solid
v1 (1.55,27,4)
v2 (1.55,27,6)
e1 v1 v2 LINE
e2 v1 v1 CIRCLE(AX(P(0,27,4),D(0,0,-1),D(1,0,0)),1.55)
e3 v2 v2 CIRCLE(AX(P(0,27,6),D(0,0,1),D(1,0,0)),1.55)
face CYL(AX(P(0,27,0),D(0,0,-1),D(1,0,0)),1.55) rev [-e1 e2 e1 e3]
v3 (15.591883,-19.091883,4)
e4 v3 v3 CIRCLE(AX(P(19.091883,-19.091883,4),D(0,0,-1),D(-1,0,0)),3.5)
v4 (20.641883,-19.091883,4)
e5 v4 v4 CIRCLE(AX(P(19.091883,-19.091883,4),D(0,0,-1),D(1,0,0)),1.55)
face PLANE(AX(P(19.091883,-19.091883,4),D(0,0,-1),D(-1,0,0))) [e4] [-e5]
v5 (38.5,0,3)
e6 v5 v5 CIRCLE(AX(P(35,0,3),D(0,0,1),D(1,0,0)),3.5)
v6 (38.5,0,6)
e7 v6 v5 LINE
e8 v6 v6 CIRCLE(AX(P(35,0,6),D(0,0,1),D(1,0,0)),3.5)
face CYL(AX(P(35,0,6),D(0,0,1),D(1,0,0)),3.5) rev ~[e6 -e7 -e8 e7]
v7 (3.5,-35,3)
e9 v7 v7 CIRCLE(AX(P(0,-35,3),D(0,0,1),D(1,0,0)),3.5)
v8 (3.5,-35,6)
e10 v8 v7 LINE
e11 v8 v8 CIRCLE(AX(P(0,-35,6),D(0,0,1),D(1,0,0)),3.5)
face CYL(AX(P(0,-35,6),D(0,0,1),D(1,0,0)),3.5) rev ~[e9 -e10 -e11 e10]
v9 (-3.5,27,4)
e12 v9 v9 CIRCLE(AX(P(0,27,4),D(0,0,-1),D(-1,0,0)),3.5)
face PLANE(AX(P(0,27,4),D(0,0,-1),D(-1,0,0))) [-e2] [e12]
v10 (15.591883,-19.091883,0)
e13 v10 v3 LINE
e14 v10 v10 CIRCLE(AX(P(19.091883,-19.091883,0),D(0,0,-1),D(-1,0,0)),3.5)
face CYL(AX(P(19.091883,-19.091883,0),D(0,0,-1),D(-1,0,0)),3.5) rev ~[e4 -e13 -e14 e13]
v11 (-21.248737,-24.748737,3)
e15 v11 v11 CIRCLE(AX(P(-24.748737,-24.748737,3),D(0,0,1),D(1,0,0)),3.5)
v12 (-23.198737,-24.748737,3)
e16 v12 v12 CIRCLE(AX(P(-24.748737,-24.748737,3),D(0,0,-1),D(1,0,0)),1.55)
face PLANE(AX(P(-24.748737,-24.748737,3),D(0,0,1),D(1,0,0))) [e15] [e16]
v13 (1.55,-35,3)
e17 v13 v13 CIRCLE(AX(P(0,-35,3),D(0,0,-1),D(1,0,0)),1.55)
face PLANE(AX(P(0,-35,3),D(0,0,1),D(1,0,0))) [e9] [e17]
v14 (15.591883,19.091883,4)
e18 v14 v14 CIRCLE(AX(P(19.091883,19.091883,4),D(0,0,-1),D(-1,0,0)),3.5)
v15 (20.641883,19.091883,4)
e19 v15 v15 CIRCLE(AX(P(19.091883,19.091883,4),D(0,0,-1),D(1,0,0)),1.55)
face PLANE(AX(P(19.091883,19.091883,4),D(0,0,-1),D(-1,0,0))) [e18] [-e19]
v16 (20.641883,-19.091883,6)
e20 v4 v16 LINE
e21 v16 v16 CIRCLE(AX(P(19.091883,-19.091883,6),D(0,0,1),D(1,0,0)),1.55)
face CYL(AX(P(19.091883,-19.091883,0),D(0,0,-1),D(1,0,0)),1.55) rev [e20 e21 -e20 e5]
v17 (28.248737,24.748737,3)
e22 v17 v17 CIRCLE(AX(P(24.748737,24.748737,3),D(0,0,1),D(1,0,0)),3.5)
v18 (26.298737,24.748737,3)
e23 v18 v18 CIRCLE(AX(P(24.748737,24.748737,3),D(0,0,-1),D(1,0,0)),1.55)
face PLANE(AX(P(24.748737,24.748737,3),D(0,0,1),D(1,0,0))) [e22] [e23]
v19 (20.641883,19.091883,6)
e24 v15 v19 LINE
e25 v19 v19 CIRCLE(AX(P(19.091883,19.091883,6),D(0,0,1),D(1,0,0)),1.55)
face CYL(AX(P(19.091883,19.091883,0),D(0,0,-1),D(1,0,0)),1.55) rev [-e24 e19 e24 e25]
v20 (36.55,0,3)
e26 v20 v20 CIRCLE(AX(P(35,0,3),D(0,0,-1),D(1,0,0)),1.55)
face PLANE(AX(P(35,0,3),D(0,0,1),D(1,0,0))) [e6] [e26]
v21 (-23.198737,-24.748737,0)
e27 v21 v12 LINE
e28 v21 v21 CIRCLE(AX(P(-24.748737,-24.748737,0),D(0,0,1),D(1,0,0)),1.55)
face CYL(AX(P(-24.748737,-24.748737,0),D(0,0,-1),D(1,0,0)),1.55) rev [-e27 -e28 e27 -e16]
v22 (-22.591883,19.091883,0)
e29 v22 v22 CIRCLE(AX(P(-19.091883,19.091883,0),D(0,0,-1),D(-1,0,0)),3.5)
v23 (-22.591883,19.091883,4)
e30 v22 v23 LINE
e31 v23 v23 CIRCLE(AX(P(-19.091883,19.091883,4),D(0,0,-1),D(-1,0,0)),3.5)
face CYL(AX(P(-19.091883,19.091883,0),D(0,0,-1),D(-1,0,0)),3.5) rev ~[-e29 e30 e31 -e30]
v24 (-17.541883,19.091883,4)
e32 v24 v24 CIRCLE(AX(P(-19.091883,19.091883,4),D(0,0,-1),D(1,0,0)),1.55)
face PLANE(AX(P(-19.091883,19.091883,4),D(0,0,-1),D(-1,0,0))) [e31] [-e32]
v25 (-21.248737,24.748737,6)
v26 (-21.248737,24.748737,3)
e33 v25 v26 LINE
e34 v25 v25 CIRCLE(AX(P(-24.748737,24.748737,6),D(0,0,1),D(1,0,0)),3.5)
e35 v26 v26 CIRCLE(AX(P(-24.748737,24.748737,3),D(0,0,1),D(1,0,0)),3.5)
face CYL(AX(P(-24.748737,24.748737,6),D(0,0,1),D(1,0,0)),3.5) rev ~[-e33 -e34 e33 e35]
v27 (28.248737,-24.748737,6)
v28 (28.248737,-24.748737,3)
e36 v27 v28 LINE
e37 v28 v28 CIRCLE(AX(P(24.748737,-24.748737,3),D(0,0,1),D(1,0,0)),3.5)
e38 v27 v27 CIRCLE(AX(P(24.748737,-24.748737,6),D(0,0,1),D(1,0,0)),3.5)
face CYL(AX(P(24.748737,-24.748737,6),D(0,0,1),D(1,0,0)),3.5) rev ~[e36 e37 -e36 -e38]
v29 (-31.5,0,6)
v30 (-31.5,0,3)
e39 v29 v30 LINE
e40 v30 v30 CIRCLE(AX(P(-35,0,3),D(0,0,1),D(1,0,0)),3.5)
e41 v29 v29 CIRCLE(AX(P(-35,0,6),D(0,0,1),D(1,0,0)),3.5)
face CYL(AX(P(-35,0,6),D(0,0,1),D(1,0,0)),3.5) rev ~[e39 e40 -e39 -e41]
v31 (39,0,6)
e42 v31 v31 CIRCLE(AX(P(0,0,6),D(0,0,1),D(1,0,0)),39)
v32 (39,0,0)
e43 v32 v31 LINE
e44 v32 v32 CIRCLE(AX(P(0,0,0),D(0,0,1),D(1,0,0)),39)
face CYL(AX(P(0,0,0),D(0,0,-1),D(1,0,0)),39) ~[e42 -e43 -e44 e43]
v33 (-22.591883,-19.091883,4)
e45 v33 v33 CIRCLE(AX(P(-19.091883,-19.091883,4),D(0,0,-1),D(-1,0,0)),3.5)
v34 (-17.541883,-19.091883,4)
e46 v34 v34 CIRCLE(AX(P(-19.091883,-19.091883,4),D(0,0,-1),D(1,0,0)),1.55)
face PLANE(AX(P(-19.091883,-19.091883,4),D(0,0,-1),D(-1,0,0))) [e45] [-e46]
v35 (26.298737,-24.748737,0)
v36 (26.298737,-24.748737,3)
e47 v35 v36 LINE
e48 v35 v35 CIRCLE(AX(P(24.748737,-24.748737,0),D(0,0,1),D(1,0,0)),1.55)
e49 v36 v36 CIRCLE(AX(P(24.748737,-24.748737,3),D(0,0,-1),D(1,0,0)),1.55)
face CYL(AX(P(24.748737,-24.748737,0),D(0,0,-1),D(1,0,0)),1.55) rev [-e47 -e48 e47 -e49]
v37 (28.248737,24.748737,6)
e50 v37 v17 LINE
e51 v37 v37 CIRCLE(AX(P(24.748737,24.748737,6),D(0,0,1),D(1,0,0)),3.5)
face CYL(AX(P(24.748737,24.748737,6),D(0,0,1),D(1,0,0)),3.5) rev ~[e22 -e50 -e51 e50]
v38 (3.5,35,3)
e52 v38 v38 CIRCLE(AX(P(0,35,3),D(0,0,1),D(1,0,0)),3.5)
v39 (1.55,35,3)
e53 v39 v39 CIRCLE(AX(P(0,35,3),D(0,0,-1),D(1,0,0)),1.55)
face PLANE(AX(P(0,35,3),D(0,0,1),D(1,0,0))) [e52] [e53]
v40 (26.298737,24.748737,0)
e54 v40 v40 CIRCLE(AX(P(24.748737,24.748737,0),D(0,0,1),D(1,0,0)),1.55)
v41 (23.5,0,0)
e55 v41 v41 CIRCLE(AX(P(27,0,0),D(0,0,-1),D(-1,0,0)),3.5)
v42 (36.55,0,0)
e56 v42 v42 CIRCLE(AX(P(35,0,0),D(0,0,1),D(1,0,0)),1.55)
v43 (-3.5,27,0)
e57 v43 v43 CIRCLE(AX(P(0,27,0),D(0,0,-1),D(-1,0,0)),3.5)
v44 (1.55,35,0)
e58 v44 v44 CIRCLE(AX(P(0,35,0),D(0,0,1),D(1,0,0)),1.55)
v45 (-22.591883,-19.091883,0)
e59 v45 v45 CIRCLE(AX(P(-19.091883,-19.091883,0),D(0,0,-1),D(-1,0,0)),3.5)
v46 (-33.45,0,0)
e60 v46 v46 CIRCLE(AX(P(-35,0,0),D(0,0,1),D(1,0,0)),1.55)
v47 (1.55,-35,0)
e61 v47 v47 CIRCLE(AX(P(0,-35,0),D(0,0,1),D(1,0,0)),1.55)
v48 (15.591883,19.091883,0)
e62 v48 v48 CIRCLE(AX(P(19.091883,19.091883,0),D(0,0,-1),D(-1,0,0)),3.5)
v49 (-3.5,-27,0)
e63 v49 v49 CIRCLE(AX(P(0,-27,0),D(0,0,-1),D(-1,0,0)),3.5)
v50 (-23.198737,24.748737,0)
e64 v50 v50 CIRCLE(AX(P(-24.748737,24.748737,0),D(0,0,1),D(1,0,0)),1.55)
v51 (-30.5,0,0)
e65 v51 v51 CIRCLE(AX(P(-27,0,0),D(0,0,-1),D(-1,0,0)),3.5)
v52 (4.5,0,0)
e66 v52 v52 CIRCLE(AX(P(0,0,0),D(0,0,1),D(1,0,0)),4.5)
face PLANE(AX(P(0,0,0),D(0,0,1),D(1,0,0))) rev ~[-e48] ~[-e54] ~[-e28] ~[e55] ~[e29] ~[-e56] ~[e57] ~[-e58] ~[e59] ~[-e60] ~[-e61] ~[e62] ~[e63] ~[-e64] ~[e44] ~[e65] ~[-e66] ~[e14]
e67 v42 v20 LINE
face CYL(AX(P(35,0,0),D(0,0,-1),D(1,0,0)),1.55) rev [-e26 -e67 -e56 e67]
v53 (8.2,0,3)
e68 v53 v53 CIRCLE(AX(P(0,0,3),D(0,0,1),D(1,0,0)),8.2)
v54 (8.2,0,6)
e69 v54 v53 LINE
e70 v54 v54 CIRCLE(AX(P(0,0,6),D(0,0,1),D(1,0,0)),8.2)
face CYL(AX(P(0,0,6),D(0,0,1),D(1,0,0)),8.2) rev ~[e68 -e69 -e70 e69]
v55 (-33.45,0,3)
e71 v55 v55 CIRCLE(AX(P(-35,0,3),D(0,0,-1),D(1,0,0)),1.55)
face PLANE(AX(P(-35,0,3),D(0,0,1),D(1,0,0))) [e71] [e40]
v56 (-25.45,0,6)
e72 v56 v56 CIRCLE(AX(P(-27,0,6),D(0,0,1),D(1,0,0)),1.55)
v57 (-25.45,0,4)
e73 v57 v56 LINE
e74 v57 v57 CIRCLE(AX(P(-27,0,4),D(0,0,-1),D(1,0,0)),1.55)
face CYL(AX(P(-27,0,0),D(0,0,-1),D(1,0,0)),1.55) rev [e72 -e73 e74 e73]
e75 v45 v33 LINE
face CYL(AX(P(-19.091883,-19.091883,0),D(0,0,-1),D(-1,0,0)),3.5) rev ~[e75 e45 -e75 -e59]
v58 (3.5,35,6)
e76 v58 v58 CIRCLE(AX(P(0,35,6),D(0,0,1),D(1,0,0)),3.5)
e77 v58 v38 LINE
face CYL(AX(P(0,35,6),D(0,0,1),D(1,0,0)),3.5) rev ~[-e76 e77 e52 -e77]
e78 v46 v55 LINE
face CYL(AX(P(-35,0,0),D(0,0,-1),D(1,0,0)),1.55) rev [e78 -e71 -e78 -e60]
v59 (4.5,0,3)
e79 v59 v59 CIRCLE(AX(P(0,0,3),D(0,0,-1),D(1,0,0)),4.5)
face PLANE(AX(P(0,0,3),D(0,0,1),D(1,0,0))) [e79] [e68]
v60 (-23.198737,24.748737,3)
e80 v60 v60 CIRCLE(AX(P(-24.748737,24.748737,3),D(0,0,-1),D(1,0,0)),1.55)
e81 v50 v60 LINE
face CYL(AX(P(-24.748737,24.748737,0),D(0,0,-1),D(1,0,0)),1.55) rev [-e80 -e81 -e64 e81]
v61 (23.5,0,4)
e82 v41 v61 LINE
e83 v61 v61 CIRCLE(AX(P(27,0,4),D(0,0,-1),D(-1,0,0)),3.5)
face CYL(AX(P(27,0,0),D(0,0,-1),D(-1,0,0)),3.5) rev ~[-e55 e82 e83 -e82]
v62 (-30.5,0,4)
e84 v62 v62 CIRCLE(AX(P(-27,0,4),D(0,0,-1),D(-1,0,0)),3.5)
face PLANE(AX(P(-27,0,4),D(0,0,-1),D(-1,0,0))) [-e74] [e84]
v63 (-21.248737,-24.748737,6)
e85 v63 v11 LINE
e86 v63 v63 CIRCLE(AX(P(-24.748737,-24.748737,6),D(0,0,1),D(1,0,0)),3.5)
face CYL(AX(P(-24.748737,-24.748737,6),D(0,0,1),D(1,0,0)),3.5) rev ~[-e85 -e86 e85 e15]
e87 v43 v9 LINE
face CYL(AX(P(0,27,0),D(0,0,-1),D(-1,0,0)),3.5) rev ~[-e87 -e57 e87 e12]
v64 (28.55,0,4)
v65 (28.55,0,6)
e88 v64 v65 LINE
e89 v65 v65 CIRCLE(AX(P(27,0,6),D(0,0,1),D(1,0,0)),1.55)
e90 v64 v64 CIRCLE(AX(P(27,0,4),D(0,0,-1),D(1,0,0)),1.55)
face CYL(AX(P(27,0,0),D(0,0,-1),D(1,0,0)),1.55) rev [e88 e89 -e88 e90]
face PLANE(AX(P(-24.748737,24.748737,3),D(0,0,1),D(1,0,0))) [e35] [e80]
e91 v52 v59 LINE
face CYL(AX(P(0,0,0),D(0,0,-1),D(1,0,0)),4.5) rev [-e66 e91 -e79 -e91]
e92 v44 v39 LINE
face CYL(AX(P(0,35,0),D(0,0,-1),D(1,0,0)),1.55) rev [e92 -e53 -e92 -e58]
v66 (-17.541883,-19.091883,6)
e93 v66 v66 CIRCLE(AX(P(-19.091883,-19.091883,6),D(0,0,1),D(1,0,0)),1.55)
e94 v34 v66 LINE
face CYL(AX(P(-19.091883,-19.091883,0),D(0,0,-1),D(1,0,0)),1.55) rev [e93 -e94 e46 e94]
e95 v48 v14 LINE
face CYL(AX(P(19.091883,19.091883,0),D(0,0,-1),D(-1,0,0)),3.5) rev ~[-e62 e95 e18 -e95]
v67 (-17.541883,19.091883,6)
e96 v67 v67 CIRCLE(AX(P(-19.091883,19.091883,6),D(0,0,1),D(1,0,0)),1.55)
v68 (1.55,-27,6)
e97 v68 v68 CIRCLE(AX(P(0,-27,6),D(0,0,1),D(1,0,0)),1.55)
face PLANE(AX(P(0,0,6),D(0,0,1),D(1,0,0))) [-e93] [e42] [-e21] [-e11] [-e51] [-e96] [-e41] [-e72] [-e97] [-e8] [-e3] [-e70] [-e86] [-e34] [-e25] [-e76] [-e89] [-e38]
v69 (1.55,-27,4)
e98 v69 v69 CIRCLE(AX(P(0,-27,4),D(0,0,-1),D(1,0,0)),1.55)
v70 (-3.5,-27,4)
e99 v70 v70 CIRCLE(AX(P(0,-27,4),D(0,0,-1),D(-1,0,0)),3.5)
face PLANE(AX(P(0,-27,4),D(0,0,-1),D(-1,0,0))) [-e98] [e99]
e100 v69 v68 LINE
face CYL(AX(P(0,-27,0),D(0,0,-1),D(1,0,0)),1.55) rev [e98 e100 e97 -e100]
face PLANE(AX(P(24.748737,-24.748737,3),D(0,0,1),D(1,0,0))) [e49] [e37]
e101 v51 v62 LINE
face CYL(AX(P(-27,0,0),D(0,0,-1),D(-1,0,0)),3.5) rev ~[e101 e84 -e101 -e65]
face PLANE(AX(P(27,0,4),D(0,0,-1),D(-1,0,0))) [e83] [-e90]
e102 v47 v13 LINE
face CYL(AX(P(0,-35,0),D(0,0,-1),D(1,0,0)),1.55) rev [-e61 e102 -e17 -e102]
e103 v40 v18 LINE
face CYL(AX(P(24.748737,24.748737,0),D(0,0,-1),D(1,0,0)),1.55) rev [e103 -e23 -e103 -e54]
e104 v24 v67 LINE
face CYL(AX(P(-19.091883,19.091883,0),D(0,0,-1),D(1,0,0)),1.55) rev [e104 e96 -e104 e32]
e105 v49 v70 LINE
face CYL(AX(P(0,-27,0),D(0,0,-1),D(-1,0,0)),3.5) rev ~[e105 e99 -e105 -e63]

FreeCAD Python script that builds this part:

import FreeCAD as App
import Part
import Sketcher
from FreeCAD import Vector
Q = App.Units.Quantity

doc = App.newDocument("Part")
body = doc.addObject("PartDesign::Body", "Body")

# Sketch on XY plane
sketch1 = body.newObject("Sketcher::SketchObject", "Sketch")
sketch1.AttachmentSupport = (doc.getObject("XY_Plane"), [""])
sketch1.MapMode = "FlatFace"
sketch1.addGeometry([
    Part.Circle(Vector(0, 0, 0), Vector(0, 0, 1), 39),  # 0
    Part.Circle(Vector(-24.748737, -24.748737, 0), Vector(0, 0, 1), 1.55),  # 1
    Part.Circle(Vector(-19.091883, -19.091883, 0), Vector(0, 0, 1), 1.55),  # 2
    Part.Circle(Vector(0, -35, 0), Vector(0, 0, 1), 1.55),  # 3
    Part.Circle(Vector(0, -27, 0), Vector(0, 0, 1), 1.55),  # 4
    Part.Circle(Vector(24.748737, -24.748737, 0), Vector(0, 0, 1), 1.55),  # 5
    Part.Circle(Vector(19.091883, -19.091883, 0), Vector(0, 0, 1), 1.55),  # 6
    Part.Circle(Vector(-35, 0, 0), Vector(0, 0, 1), 1.55),  # 7
    Part.Circle(Vector(-27, 0, 0), Vector(0, 0, 1), 1.55),  # 8
    Part.Circle(Vector(-19.091883, 19.091883, 0), Vector(0, 0, 1), 1.55),  # 9
    Part.Circle(Vector(-24.748737, 24.748737, 0), Vector(0, 0, 1), 1.55),  # 10
    Part.Circle(Vector(0, 0, 0), Vector(0, 0, 1), 4.5),  # 11
    Part.Circle(Vector(27, 0, 0), Vector(0, 0, 1), 1.55),  # 12
    Part.Circle(Vector(35, 0, 0), Vector(0, 0, 1), 1.55),  # 13
    Part.Circle(Vector(0, 27, 0), Vector(0, 0, 1), 1.55),  # 14
    Part.Circle(Vector(0, 35, 0), Vector(0, 0, 1), 1.55),  # 15
    Part.Circle(Vector(19.091883, 19.091883, 0), Vector(0, 0, 1), 1.55),  # 16
    Part.Circle(Vector(24.748737, 24.748737, 0), Vector(0, 0, 1), 1.55),  # 17
], False)
sketch1.addConstraint([
    Sketcher.Constraint("Coincident", 0, 3, -1, 1),
    Sketcher.Constraint("Coincident", 11, 3, -1, 1),
    Sketcher.Constraint("Equal", 1, 2),
    Sketcher.Constraint("Equal", 2, 3),
    Sketcher.Constraint("Equal", 3, 4),
    Sketcher.Constraint("Equal", 4, 5),
    Sketcher.Constraint("Equal", 5, 6),
    Sketcher.Constraint("Equal", 6, 7),
    Sketcher.Constraint("Equal", 7, 8),
    Sketcher.Constraint("Equal", 8, 9),
    Sketcher.Constraint("Equal", 9, 10),
    Sketcher.Constraint("Equal", 10, 12),
    Sketcher.Constraint("Equal", 12, 13),
    Sketcher.Constraint("Equal", 13, 14),
    Sketcher.Constraint("Equal", 14, 15),
    Sketcher.Constraint("Equal", 15, 16),
    Sketcher.Constraint("Equal", 16, 17),
    Sketcher.Constraint("Symmetric", 6, 3, 9, 3, -1, 1),
    Sketcher.Constraint("Symmetric", 5, 3, 10, 3, -1, 1),
    Sketcher.Constraint("Symmetric", 8, 3, 12, 3, -1, 1),
    Sketcher.Constraint("Symmetric", 7, 3, 13, 3, -1, 1),
    Sketcher.Constraint("Symmetric", 4, 3, 14, 3, -1, 1),
    Sketcher.Constraint("Symmetric", 3, 3, 15, 3, -1, 1),
    Sketcher.Constraint("Symmetric", 2, 3, 16, 3, -1, 1),
    Sketcher.Constraint("Symmetric", 1, 3, 17, 3, -1, 1),
    Sketcher.Constraint("Symmetric", 1, 3, 5, 3, -2),
    Sketcher.Constraint("Symmetric", 2, 3, 6, 3, -2),
    Sketcher.Constraint("PointOnObject", 3, 3, -2),
    Sketcher.Constraint("PointOnObject", 4, 3, -2),
    Sketcher.Constraint("PointOnObject", 7, 3, -1),
    Sketcher.Constraint("PointOnObject", 8, 3, -1),
    Sketcher.Constraint("Diameter", 0, Q("78 mm")),
    Sketcher.Constraint("Diameter", 11, Q("9 mm")),
    Sketcher.Constraint("Diameter", 1, Q("3.1 mm")),
    Sketcher.Constraint("DistanceY", 3, 3, -1, 1, Q("35 mm")),
    Sketcher.Constraint("DistanceY", 4, 3, -1, 1, Q("27 mm")),
    Sketcher.Constraint("DistanceX", 7, 3, -1, 1, Q("35 mm")),
    Sketcher.Constraint("DistanceX", 8, 3, -1, 1, Q("27 mm")),
    Sketcher.Constraint("DistanceX", 2, 3, 5, 3, Q("43.84062 mm")),
    Sketcher.Constraint("DistanceY", 1, 3, 9, 3, Q("43.84062 mm")),
    Sketcher.Constraint("DistanceX", 1, 3, -1, 1, Q("24.748737 mm")),
    Sketcher.Constraint("DistanceY", 1, 3, -1, 1, Q("24.748737 mm")),
])
pad1 = body.newObject("PartDesign::Pad", "Pad")
pad1.Profile = sketch1
pad1.Length = 6

# Sketch on XY plane
sketch2 = body.newObject("Sketcher::SketchObject", "Sketch001")
sketch2.AttachmentSupport = (doc.getObject("XY_Plane"), [""])
sketch2.MapMode = "FlatFace"
sketch2.AttachmentOffset = App.Placement(Vector(0, 0, 6), App.Rotation())
sketch2.addGeometry(Part.Circle(Vector(0, 0, 0), Vector(0, 0, 1), 8.2), False)
sketch2.addConstraint([
    Sketcher.Constraint("Coincident", 0, 3, -1, 1),
    Sketcher.Constraint("Diameter", 0, Q("16.4 mm")),
])
pocket1 = body.newObject("PartDesign::Pocket", "Pocket")
pocket1.Profile = sketch2
pocket1.Length = 3

# Sketch on XY plane
sketch3 = body.newObject("Sketcher::SketchObject", "Sketch002")
sketch3.AttachmentSupport = (doc.getObject("XY_Plane"), [""])
sketch3.MapMode = "FlatFace"
sketch3.addGeometry([
    Part.Circle(Vector(0, 27, 0), Vector(0, 0, 1), 3.5),  # 0
    Part.Circle(Vector(-19.091883, 19.091883, 0), Vector(0, 0, 1), 3.5),  # 1
    Part.Circle(Vector(-27, 0, 0), Vector(0, 0, 1), 3.5),  # 2
    Part.Circle(Vector(-19.091883, -19.091883, 0), Vector(0, 0, 1), 3.5),  # 3
    Part.Circle(Vector(0, -27, 0), Vector(0, 0, 1), 3.5),  # 4
    Part.Circle(Vector(19.091883, -19.091883, 0), Vector(0, 0, 1), 3.5),  # 5
    Part.Circle(Vector(27, 0, 0), Vector(0, 0, 1), 3.5),  # 6
    Part.Circle(Vector(19.091883, 19.091883, 0), Vector(0, 0, 1), 3.5),  # 7
], False)
sketch3.addConstraint([
    Sketcher.Constraint("Equal", 0, 1),
    Sketcher.Constraint("Equal", 1, 2),
    Sketcher.Constraint("Equal", 2, 3),
    Sketcher.Constraint("Equal", 3, 4),
    Sketcher.Constraint("Equal", 4, 5),
    Sketcher.Constraint("Equal", 5, 6),
    Sketcher.Constraint("Equal", 6, 7),
    Sketcher.Constraint("Symmetric", 0, 3, 4, 3, -1, 1),
    Sketcher.Constraint("Symmetric", 1, 3, 5, 3, -1, 1),
    Sketcher.Constraint("Symmetric", 2, 3, 6, 3, -1, 1),
    Sketcher.Constraint("Symmetric", 3, 3, 7, 3, -1, 1),
    Sketcher.Constraint("Symmetric", 3, 3, 5, 3, -2),
    Sketcher.Constraint("PointOnObject", 0, 3, -2),
    Sketcher.Constraint("PointOnObject", 2, 3, -1),
    Sketcher.Constraint("Diameter", 0, Q("7 mm")),
    Sketcher.Constraint("DistanceY", -1, 1, 0, 3, Q("27 mm")),
    Sketcher.Constraint("DistanceX", 2, 3, -1, 1, Q("27 mm")),
    Sketcher.Constraint("DistanceX", 1, 3, -1, 1, Q("19.091883 mm")),
    Sketcher.Constraint("DistanceY", -1, 1, 1, 3, Q("19.091883 mm")),
])
pocket2 = body.newObject("PartDesign::Pocket", "Pocket001")
pocket2.Profile = sketch3
pocket2.Length = 4
pocket2.Reversed = True

# Sketch on XY plane
sketch4 = body.newObject("Sketcher::SketchObject", "Sketch003")
sketch4.AttachmentSupport = (doc.getObject("XY_Plane"), [""])
sketch4.MapMode = "FlatFace"
sketch4.AttachmentOffset = App.Placement(Vector(0, 0, 6), App.Rotation())
sketch4.addGeometry([
    Part.Circle(Vector(-35, 0, 0), Vector(0, 0, 1), 3.5),  # 0
    Part.Circle(Vector(-24.748737, 24.748737, 0), Vector(0, 0, 1), 3.5),  # 1
    Part.Circle(Vector(0, 35, 0), Vector(0, 0, 1), 3.5),  # 2
    Part.Circle(Vector(24.748737, 24.748737, 0), Vector(0, 0, 1), 3.5),  # 3
    Part.Circle(Vector(35, 0, 0), Vector(0, 0, 1), 3.5),  # 4
    Part.Circle(Vector(24.748737, -24.748737, 0), Vector(0, 0, 1), 3.5),  # 5
    Part.Circle(Vector(0, -35, 0), Vector(0, 0, 1), 3.5),  # 6
    Part.Circle(Vector(-24.748737, -24.748737, 0), Vector(0, 0, 1), 3.5),  # 7
], False)
sketch4.addConstraint([
    Sketcher.Constraint("Equal", 0, 1),
    Sketcher.Constraint("Equal", 1, 2),
    Sketcher.Constraint("Equal", 2, 3),
    Sketcher.Constraint("Equal", 3, 4),
    Sketcher.Constraint("Equal", 4, 5),
    Sketcher.Constraint("Equal", 5, 6),
    Sketcher.Constraint("Equal", 6, 7),
    Sketcher.Constraint("Symmetric", 0, 3, 4, 3, -1, 1),
    Sketcher.Constraint("Symmetric", 1, 3, 5, 3, -1, 1),
    Sketcher.Constraint("Symmetric", 2, 3, 6, 3, -1, 1),
    Sketcher.Constraint("Symmetric", 3, 3, 7, 3, -1, 1),
    Sketcher.Constraint("Symmetric", 1, 3, 3, 3, -2),
    Sketcher.Constraint("PointOnObject", 0, 3, -1),
    Sketcher.Constraint("PointOnObject", 2, 3, -2),
    Sketcher.Constraint("Diameter", 0, Q("7 mm")),
    Sketcher.Constraint("DistanceX", 0, 3, -1, 1, Q("35 mm")),
    Sketcher.Constraint("DistanceY", -1, 1, 2, 3, Q("35 mm")),
    Sketcher.Constraint("DistanceX", 1, 3, -1, 1, Q("24.748737 mm")),
    Sketcher.Constraint("DistanceY", -1, 1, 1, 3, Q("24.748737 mm")),
])
pocket3 = body.newObject("PartDesign::Pocket", "Pocket002")
pocket3.Profile = sketch4
pocket3.Length = 3

doc.recompute()
